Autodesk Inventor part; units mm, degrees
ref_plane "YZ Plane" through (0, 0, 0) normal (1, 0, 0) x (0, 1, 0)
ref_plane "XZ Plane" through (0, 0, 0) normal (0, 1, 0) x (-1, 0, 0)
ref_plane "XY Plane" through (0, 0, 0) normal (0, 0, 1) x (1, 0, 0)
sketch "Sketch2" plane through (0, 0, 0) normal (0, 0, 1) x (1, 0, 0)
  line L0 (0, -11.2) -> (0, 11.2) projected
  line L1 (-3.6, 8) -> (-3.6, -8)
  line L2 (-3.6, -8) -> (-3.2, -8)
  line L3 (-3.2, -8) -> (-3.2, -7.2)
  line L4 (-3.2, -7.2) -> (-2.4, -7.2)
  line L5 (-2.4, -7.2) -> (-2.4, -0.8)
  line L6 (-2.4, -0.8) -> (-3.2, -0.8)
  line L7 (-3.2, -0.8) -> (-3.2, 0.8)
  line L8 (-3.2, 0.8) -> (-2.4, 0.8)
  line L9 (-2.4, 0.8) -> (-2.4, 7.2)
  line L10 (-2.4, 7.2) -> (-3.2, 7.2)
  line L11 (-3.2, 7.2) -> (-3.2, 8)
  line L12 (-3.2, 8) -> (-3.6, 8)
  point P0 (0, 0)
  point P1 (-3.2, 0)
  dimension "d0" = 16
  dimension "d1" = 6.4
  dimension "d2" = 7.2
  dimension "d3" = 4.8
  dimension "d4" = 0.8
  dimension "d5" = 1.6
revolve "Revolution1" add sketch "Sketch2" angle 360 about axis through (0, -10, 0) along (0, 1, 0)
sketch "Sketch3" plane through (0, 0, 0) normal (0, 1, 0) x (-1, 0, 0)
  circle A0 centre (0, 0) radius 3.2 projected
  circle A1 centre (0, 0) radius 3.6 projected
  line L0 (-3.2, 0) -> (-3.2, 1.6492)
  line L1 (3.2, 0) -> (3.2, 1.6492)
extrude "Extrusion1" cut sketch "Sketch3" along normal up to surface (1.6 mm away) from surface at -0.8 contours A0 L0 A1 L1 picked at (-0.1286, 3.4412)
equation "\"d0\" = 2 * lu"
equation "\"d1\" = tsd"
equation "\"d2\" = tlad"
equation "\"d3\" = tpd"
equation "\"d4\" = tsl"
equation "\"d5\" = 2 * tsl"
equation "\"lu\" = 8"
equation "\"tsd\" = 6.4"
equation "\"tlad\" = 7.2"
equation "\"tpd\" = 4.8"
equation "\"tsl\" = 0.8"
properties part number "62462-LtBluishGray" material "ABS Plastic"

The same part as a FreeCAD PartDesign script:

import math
import FreeCAD as App
import Part
import Sketcher

V = App.Vector
Q = App.Units.Quantity


def add_polygon(sketch, points):
    """Adds a closed chain of lines whose ends are joined by coincident constraints."""
    first, n = sketch.GeometryCount, len(points)
    for a, b in zip(points, points[1:] + points[:1]):
        sketch.addGeometry(Part.LineSegment(App.Vector(*a, 0), App.Vector(*b, 0)), False)
    for i in range(n):
        sketch.addConstraint(Sketcher.Constraint("Coincident", first + i, 2, first + (i + 1) % n, 1))

doc = App.newDocument("Part")
body = doc.addObject("PartDesign::Body", "Body")

# Sketch on XY plane
sketch1 = body.newObject("Sketcher::SketchObject", "Sketch")
sketch1.AttachmentSupport = (doc.getObject("XY_Plane"), [""])
sketch1.MapMode = "FlatFace"
add_polygon(sketch1, [(-3.2, 8), (-3.6, 8), (-3.6, -8), (-3.2, -8), (-3.2, -7.2), (-2.4, -7.2), (-2.4, -0.8), (-3.2, -0.8), (-3.2, 0.8), (-2.4, 0.8), (-2.4, 7.2), (-3.2, 7.2)])  # lines 0-11
sketch1.addConstraint([
    Sketcher.Constraint("Horizontal", 0),
    Sketcher.Constraint("Vertical", 1),
    Sketcher.Constraint("Horizontal", 2),
    Sketcher.Constraint("Vertical", 3),
    Sketcher.Constraint("Horizontal", 4),
    Sketcher.Constraint("Vertical", 5),
    Sketcher.Constraint("Horizontal", 6),
    Sketcher.Constraint("Vertical", 7),
    Sketcher.Constraint("Horizontal", 8),
    Sketcher.Constraint("Vertical", 9),
    Sketcher.Constraint("Horizontal", 10),
    Sketcher.Constraint("Vertical", 11),
    Sketcher.Constraint("Symmetric", 5, 2, 8, 2, -1),
    Sketcher.Constraint("Symmetric", 3, 2, 10, 2, -1),
    Sketcher.Constraint("Vertical", 3, 2, 6, 2),
    Sketcher.Constraint("Equal", 10, 3),
    Sketcher.Constraint("Equal", 3, 11),
    Sketcher.Constraint("DistanceY", 1, 2, 1, 1, Q("16 mm")),
    Sketcher.Constraint("DistanceX", 4, 1, 4, 2, Q("0.8 mm")),
    Sketcher.Constraint("DistanceY", 5, 1, 5, 2, Q("6.4 mm")),
    Sketcher.Constraint("DistanceX", 0, 2, 0, 1, Q("0.4 mm")),
    Sketcher.Constraint("DistanceX", 0, 2, -1, 1, Q("3.6 mm")),
])
revolution = body.newObject("PartDesign::Revolution", "Revolution")
revolution.Profile = sketch1
revolution.ReferenceAxis = (sketch1, ["V_Axis"])
revolution.Angle = 360

# Sketch on XZ plane
sketch2 = body.newObject("Sketcher::SketchObject", "Sketch001")
sketch2.AttachmentSupport = (doc.getObject("XZ_Plane"), [""])
sketch2.MapMode = "FlatFace"
sketch2.AttachmentOffset = App.Placement(V(0, 0, 0.8), App.Rotation())
sketch2.addGeometry([
    Part.ArcOfCircle(Part.Circle(V(0, 0, 0), V(0, 0, 1), 3.2), math.radians(0), math.radians(180)),
    Part.LineSegment(V(-3.2, 0, 0), V(-3.2, 1.6, 0)),
    Part.ArcOfCircle(Part.Circle(V(0, 0, 0), V(0, 0, 1), 3.6), math.radians(27), math.radians(153)),
    Part.LineSegment(V(3.2, 1.6, 0), V(3.2, 0, 0)),
], False)
sketch2.addConstraint([
    Sketcher.Constraint("Tangent", 0, 2, 1, 1),
    Sketcher.Constraint("Coincident", 1, 2, 2, 2),
    Sketcher.Constraint("Coincident", 2, 1, 3, 1),
    Sketcher.Constraint("Tangent", 3, 2, 0, 1),
    Sketcher.Constraint("Vertical", 1),
    Sketcher.Constraint("Vertical", 3),
    Sketcher.Constraint("Coincident", 0, 3, -1, 1),
    Sketcher.Constraint("Coincident", 2, 3, -1, 1),
    Sketcher.Constraint("Radius", 0, Q("3.2 mm")),
    Sketcher.Constraint("Radius", 2, Q("3.6 mm")),
])
pocket1 = body.newObject("PartDesign::Pocket", "Pocket")
pocket1.Profile = sketch2
pocket1.Length = 1.6

doc.recompute()
